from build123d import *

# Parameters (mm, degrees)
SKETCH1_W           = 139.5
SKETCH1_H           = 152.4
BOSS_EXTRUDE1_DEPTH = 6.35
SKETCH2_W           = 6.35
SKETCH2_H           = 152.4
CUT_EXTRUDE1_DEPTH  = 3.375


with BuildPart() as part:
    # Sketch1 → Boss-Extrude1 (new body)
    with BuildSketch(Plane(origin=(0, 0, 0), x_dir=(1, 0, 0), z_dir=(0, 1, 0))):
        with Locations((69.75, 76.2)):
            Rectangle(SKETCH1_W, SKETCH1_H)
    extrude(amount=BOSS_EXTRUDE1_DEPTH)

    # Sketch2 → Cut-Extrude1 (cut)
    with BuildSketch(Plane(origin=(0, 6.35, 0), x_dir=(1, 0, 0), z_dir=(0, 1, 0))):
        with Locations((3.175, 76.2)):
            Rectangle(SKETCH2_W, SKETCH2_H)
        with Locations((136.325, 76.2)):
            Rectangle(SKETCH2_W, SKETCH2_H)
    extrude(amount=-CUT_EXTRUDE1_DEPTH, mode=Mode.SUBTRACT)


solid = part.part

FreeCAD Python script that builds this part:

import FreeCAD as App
import Part
import Sketcher
from FreeCAD import Vector
Q = App.Units.Quantity


def add_polygon(sketch, points):
    """Adds a closed chain of lines whose ends are joined by coincident constraints."""
    first, n = sketch.GeometryCount, len(points)
    for a, b in zip(points, points[1:] + points[:1]):
        sketch.addGeometry(Part.LineSegment(App.Vector(*a, 0), App.Vector(*b, 0)), False)
    for i in range(n):
        sketch.addConstraint(Sketcher.Constraint("Coincident", first + i, 2, first + (i + 1) % n, 1))

doc = App.newDocument("Part")
params = doc.addObject("Spreadsheet::Sheet", "Params")
for row, (alias, value) in enumerate([
    ("sketch1_height", "6 in"),
    ("pad1_length", "0.25 in"),
    ("sketch2_height", "6 in"),
    ("sketch2_width", "0.25 in"),
    ("pocket1_length", "3.375 mm"),
], start=1):
    params.set(f"A{row}", alias)
    params.set(f"B{row}", "=" + value)
    params.setAlias(f"B{row}", alias)

body = doc.addObject("PartDesign::Body", "Body")

# Sketch on XZ plane
sketch1 = body.newObject("Sketcher::SketchObject", "Sketch")
sketch1.AttachmentSupport = (doc.getObject("XZ_Plane"), [""])
sketch1.MapMode = "FlatFace"
add_polygon(sketch1, [(0, -152), (0, 0), (140, 0), (140, -152)])  # lines 0-3
sketch1.addConstraint(Sketcher.Constraint("Vertical", 0))
sketch1.addConstraint(Sketcher.Constraint("Horizontal", 1))
sketch1.addConstraint(Sketcher.Constraint("Vertical", 2))
sketch1.addConstraint(Sketcher.Constraint("Horizontal", 3))
sketch1.addConstraint(Sketcher.Constraint("Coincident", 0, 2, -1, 1))
sketch1.addConstraint(Sketcher.Constraint("DistanceY", 0, 1, 0, 2, Q("6 in")))
sketch1.addConstraint(Sketcher.Constraint("DistanceX", 1, 1, 1, 2, 139.5))
sketch1.setExpression("Constraints[9]", "Params.sketch1_height")
pad1 = body.newObject("PartDesign::Pad", "Pad")
pad1.Profile = sketch1
pad1.setExpression("Length", "Params.pad1_length")
pad1.Reversed = True

# Sketch on XZ plane
sketch2 = body.newObject("Sketcher::SketchObject", "Sketch001")
sketch2.AttachmentSupport = (doc.getObject("XZ_Plane"), [""])
sketch2.MapMode = "FlatFace"
sketch2.AttachmentOffset = App.Placement(Vector(0, 0, -0.25 * 25.4), App.Rotation())
add_polygon(sketch2, [(0, -152), (0, 0), (6, 0), (6, -152)])  # lines 0-3
add_polygon(sketch2, [(133, -152), (133, 0), (140, 0), (140, -152)])  # lines 4-7
sketch2.addConstraint(Sketcher.Constraint("Vertical", 0))
sketch2.addConstraint(Sketcher.Constraint("Horizontal", 1))
sketch2.addConstraint(Sketcher.Constraint("Vertical", 2))
sketch2.addConstraint(Sketcher.Constraint("Horizontal", 3))
sketch2.addConstraint(Sketcher.Constraint("Vertical", 4))
sketch2.addConstraint(Sketcher.Constraint("Horizontal", 5))
sketch2.addConstraint(Sketcher.Constraint("Vertical", 6))
sketch2.addConstraint(Sketcher.Constraint("Horizontal", 7))
sketch2.addConstraint(Sketcher.Constraint("Coincident", 0, 2, -1, 1))
sketch2.addConstraint(Sketcher.Constraint("PointOnObject", 4, 2, -1))
sketch2.addConstraint(Sketcher.Constraint("Horizontal", 3, 2, 6, 2))
sketch2.addConstraint(Sketcher.Constraint("Equal", 3, 5))
sketch2.addConstraint(Sketcher.Constraint("DistanceY", 0, 1, 0, 2, Q("6 in")))
sketch2.addConstraint(Sketcher.Constraint("DistanceX", 1, 1, 1, 2, Q("0.25 in")))
sketch2.addConstraint(Sketcher.Constraint("DistanceX", -1, 1, 4, 2, 133.15))
sketch2.setExpression("Constraints[20]", "Params.sketch2_height")
sketch2.setExpression("Constraints[21]", "Params.sketch2_width")
pocket1 = body.newObject("PartDesign::Pocket", "Pocket")
pocket1.Profile = sketch2
pocket1.setExpression("Length", "Params.pocket1_length")
pocket1.Reversed = True

doc.recompute()
